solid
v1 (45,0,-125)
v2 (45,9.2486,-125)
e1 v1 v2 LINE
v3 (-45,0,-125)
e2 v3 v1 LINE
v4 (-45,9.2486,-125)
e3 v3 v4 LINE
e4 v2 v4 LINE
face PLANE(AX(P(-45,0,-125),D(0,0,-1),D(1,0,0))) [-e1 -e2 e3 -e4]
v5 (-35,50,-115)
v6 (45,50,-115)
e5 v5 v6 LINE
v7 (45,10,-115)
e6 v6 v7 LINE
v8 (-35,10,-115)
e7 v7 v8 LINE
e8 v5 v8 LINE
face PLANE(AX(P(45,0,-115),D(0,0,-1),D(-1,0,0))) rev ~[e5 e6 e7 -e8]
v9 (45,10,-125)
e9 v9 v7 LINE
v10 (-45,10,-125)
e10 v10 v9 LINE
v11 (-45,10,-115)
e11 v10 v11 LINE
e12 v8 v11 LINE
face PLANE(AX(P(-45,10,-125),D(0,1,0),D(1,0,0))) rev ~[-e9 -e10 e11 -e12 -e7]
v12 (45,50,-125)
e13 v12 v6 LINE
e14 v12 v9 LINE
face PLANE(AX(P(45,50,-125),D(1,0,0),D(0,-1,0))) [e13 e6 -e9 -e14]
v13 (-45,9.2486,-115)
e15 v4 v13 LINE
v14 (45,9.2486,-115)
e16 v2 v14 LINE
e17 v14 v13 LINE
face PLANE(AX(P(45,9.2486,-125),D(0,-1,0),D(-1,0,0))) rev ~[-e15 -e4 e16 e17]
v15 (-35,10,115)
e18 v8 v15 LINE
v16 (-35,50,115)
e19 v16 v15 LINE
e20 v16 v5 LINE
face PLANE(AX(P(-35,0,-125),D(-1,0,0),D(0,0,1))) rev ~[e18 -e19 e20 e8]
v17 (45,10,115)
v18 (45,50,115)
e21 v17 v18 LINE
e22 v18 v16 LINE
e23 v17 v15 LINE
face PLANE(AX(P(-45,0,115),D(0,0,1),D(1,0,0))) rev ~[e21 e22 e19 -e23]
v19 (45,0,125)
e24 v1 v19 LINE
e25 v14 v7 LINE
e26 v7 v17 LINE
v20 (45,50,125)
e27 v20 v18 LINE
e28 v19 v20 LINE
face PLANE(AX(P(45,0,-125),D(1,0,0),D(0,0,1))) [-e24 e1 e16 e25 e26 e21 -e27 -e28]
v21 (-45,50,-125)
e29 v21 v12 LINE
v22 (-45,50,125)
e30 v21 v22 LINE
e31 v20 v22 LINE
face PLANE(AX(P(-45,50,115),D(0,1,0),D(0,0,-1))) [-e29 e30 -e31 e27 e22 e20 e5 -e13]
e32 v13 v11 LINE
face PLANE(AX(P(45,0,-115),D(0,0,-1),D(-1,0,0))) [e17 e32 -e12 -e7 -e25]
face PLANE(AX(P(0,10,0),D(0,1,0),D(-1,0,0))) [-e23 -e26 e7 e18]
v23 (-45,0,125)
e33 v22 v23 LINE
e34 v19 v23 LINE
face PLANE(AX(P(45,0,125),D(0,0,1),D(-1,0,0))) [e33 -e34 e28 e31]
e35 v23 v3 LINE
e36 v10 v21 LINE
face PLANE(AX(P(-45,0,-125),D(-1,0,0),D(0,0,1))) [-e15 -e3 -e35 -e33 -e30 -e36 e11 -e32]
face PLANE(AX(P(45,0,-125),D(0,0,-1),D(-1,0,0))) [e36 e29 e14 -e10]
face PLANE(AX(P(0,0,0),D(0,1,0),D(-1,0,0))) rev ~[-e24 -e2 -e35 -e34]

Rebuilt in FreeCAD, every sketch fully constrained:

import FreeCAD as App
import Part
import Sketcher

V = App.Vector


def add_polygon(sketch, points):
    """Adds a closed chain of lines whose ends are joined by coincident constraints."""
    first, n = sketch.GeometryCount, len(points)
    for a, b in zip(points, points[1:] + points[:1]):
        sketch.addGeometry(Part.LineSegment(App.Vector(*a, 0), App.Vector(*b, 0)), False)
    for i in range(n):
        sketch.addConstraint(Sketcher.Constraint("Coincident", first + i, 2, first + (i + 1) % n, 1))

doc = App.newDocument("Part")
body = doc.addObject("PartDesign::Body", "Body")
body.AllowCompound = True

# Sketch on XZ plane
sketch1 = body.newObject("Sketcher::SketchObject", "Sketch")
sketch1.AttachmentSupport = (doc.getObject("XZ_Plane"), [""])
sketch1.MapMode = "FlatFace"
add_polygon(sketch1, [(-45, 125), (45, 125), (45, -125), (-45, -125)])  # lines 0-3
sketch1.addConstraint(Sketcher.Constraint("Horizontal", 0))
sketch1.addConstraint(Sketcher.Constraint("Vertical", 1))
sketch1.addConstraint(Sketcher.Constraint("Horizontal", 2))
sketch1.addConstraint(Sketcher.Constraint("Vertical", 3))
sketch1.addConstraint(Sketcher.Constraint("Symmetric", 0, 2, 2, 2, -1, 1))
sketch1.addConstraint(Sketcher.Constraint("DistanceX", 0, 1, 0, 2, 90.0))
sketch1.addConstraint(Sketcher.Constraint("DistanceY", 1, 2, 1, 1, 250.0))
pad1 = body.newObject("PartDesign::Pad", "Pad")
pad1.Profile = sketch1
pad1.Length = 10
pad1.Reversed = True

# Sketch on XY plane
sketch2 = body.newObject("Sketcher::SketchObject", "Sketch001")
sketch2.AttachmentSupport = (doc.getObject("XY_Plane"), [""])
sketch2.MapMode = "FlatFace"
sketch2.AttachmentOffset = App.Placement(V(0, 0, 125), App.Rotation())
add_polygon(sketch2, [(-45, 10), (45, 10), (45, 50), (-45, 50)])  # lines 0-3
sketch2.addConstraint(Sketcher.Constraint("Horizontal", 0))
sketch2.addConstraint(Sketcher.Constraint("Vertical", 1))
sketch2.addConstraint(Sketcher.Constraint("Horizontal", 2))
sketch2.addConstraint(Sketcher.Constraint("Vertical", 3))
sketch2.addConstraint(Sketcher.Constraint("DistanceY", 1, 1, 1, 2, 40.0))
sketch2.addConstraint(Sketcher.Constraint("DistanceX", 0, 1, 0, 2, 90.0))
sketch2.addConstraint(Sketcher.Constraint("DistanceX", -1, 1, 0, 2, 45.0))
sketch2.addConstraint(Sketcher.Constraint("DistanceY", -1, 1, 0, 2, 10.0))
pad2 = body.newObject("PartDesign::Pad", "Pad001")
pad2.Profile = sketch2
pad2.Length = 10
pad2.Reversed = True

# Sketch on XY plane
sketch3 = body.newObject("Sketcher::SketchObject", "Sketch002")
sketch3.AttachmentSupport = (doc.getObject("XY_Plane"), [""])
sketch3.MapMode = "FlatFace"
sketch3.AttachmentOffset = App.Placement(V(0, 0, -125), App.Rotation())
add_polygon(sketch3, [(45, 50), (45, 9), (-45, 9), (-45, 50)])  # lines 0-3
sketch3.addConstraint(Sketcher.Constraint("Vertical", 0))
sketch3.addConstraint(Sketcher.Constraint("Horizontal", 1))
sketch3.addConstraint(Sketcher.Constraint("Vertical", 2))
sketch3.addConstraint(Sketcher.Constraint("Horizontal", 3))
sketch3.addConstraint(Sketcher.Constraint("DistanceX", 1, 2, 1, 1, 90.0))
sketch3.addConstraint(Sketcher.Constraint("DistanceX", -1, 1, 0, 2, 45.0))
sketch3.addConstraint(Sketcher.Constraint("DistanceY", -1, 1, 2, 2, 50.0))
sketch3.addConstraint(Sketcher.Constraint("DistanceY", 0, 2, 0, 1, 40.7514))
pocket1 = body.newObject("PartDesign::Pocket", "Pocket")
pocket1.Profile = sketch3
pocket1.Length = 10
pocket1.Reversed = True

# Sketch on XY plane
sketch4 = body.newObject("Sketcher::SketchObject", "Sketch003")
sketch4.AttachmentSupport = (doc.getObject("XY_Plane"), [""])
sketch4.MapMode = "FlatFace"
sketch4.AttachmentOffset = App.Placement(V(0, 0, -125), App.Rotation())
add_polygon(sketch4, [(45, 10), (-45, 10), (-45, 50), (45, 50)])  # lines 0-3
sketch4.addConstraint(Sketcher.Constraint("Horizontal", 0))
sketch4.addConstraint(Sketcher.Constraint("Vertical", 1))
sketch4.addConstraint(Sketcher.Constraint("Horizontal", 2))
sketch4.addConstraint(Sketcher.Constraint("Vertical", 3))
sketch4.addConstraint(Sketcher.Constraint("DistanceX", 0, 2, 0, 1, 90.0))
sketch4.addConstraint(Sketcher.Constraint("DistanceY", 1, 1, 1, 2, 40.0))
sketch4.addConstraint(Sketcher.Constraint("DistanceX", 0, 2, -1, 1, 45.0))
sketch4.addConstraint(Sketcher.Constraint("DistanceY", -1, 1, 0, 2, 10.0))
pad3 = body.newObject("PartDesign::Pad", "Pad002")
pad3.Profile = sketch4
pad3.Length = 10

# Sketch on YZ plane
sketch5 = body.newObject("Sketcher::SketchObject", "Sketch004")
sketch5.AttachmentSupport = (doc.getObject("YZ_Plane"), [""])
sketch5.MapMode = "FlatFace"
sketch5.AttachmentOffset = App.Placement(V(0, 0, -45), App.Rotation())
add_polygon(sketch5, [(50, 115), (50, -115), (10, -115), (10, 115)])  # lines 0-3
sketch5.addConstraint(Sketcher.Constraint("Vertical", 0))
sketch5.addConstraint(Sketcher.Constraint("Horizontal", 1))
sketch5.addConstraint(Sketcher.Constraint("Vertical", 2))
sketch5.addConstraint(Sketcher.Constraint("Horizontal", 3))
sketch5.addConstraint(Sketcher.Constraint("DistanceX", 1, 2, 1, 1, 40.0))
sketch5.addConstraint(Sketcher.Constraint("DistanceY", 0, 2, 0, 1, 230.0))
sketch5.addConstraint(Sketcher.Constraint("DistanceX", -1, 1, 0, 2, 50.0))
sketch5.addConstraint(Sketcher.Constraint("DistanceY", 0, 2, -1, 1, 115.0))
pad4 = body.newObject("PartDesign::Pad", "Pad003")
pad4.Profile = sketch5
pad4.Length = 10

doc.recompute()
